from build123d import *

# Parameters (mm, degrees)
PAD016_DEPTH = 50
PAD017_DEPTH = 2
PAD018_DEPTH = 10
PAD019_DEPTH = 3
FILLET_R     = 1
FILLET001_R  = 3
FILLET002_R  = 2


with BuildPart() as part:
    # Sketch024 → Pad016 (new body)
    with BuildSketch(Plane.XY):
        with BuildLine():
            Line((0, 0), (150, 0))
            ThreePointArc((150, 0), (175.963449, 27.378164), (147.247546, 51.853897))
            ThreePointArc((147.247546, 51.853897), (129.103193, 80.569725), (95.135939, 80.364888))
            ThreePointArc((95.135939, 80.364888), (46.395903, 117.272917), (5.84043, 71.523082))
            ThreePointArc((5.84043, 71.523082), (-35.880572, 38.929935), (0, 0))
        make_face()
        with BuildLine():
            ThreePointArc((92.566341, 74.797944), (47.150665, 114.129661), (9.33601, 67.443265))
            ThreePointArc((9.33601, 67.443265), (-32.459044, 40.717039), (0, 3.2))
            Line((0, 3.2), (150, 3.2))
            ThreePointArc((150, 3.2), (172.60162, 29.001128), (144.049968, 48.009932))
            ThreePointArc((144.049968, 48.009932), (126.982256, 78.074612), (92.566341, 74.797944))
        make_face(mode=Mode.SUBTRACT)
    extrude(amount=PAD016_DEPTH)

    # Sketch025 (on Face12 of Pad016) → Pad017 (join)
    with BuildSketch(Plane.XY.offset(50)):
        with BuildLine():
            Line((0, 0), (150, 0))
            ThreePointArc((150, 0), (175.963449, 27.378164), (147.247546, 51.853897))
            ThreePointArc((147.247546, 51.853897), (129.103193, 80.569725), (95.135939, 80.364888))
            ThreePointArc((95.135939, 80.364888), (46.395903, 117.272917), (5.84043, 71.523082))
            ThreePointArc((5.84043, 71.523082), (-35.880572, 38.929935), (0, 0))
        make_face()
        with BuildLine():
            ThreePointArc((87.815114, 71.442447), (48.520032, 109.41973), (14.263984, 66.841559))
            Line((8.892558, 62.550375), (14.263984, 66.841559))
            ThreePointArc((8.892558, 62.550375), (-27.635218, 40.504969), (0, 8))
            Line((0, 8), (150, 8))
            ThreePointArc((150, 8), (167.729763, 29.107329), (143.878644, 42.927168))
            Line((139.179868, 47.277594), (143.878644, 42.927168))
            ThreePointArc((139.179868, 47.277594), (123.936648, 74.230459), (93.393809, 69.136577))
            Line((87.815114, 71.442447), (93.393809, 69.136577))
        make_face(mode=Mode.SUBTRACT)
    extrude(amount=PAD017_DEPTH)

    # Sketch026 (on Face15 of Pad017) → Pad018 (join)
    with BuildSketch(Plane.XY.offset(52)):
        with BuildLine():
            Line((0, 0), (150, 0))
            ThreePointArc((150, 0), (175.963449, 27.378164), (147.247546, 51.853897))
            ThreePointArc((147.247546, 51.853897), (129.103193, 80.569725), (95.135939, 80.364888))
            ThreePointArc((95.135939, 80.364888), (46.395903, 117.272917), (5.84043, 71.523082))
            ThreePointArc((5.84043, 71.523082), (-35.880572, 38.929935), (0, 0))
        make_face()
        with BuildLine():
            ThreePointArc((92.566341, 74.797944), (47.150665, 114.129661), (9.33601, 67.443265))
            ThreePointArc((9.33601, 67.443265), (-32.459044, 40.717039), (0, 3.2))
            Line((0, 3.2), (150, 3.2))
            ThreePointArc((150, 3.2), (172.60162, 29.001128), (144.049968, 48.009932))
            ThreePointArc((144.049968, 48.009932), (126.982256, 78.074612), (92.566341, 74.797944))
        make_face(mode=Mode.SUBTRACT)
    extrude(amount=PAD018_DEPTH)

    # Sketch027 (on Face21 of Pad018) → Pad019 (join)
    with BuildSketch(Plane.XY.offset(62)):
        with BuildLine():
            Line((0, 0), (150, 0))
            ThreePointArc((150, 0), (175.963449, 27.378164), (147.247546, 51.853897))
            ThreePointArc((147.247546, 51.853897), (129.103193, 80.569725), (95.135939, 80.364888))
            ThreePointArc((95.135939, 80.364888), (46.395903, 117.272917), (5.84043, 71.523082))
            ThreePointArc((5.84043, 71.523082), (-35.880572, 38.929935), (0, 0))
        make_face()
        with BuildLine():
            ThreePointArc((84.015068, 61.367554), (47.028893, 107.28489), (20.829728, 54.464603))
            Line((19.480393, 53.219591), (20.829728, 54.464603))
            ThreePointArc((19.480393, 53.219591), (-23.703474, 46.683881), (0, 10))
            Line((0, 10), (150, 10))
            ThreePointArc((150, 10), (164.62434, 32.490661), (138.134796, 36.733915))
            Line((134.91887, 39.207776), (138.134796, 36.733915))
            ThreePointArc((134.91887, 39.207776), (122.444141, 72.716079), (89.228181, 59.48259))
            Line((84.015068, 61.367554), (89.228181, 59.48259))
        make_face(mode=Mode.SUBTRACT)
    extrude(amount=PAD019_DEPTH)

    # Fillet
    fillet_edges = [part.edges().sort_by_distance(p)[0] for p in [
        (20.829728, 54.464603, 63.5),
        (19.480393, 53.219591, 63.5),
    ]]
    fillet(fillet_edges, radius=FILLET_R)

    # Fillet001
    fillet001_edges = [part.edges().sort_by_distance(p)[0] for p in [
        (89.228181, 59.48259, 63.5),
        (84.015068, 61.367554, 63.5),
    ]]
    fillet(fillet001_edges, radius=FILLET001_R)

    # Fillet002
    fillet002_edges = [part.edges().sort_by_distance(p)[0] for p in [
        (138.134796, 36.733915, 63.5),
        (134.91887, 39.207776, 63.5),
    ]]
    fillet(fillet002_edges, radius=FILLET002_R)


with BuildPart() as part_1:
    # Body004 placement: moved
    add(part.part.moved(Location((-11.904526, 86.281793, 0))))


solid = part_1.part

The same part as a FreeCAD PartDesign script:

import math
import FreeCAD as App
import Part
import Sketcher

V = App.Vector


def edges_at(feature, points):
    """Names of the edges that pass closest to the given points."""
    edges = feature.Shape.Edges
    near = lambda p: min(range(len(edges)), key=lambda i: edges[i].distToShape(Part.Vertex(*p))[0])
    return sorted({f"Edge{near(p) + 1}" for p in points})

doc = App.newDocument("Part")
params = doc.addObject("Spreadsheet::Sheet", "Params")
for row, (alias, value) in enumerate([
    ("sketch1_radius", "26 mm"),
    ("sketch1_radius2", "35 mm"),
    ("sketch1_radius3", "45 mm"),
    ("sketch1_radius4", "36 mm"),
    ("sketch1_radius5", "41.8 mm"),
    ("pad1_length", "50 mm"),
    ("sketch2_radius", "26 mm"),
    ("sketch2_radius2", "35 mm"),
    ("sketch2_radius3", "45 mm"),
    ("sketch2_radius4", "36 mm"),
    ("sketch2_radius5", "37 mm"),
    ("pad2_length", "2 mm"),
    ("sketch3_radius", "26 mm"),
    ("sketch3_radius2", "35 mm"),
    ("sketch3_radius3", "45 mm"),
    ("sketch3_radius4", "36 mm"),
    ("sketch3_radius5", "41.8 mm"),
    ("pad3_length", "10 mm"),
    ("sketch4_radius", "26 mm"),
    ("sketch4_radius2", "35 mm"),
    ("sketch4_radius3", "45 mm"),
    ("sketch4_radius4", "36 mm"),
    ("sketch4_radius5", "25 mm"),
    ("pad4_length", "3 mm"),
    ("fillet_radius", "1 mm"),
    ("fillet2_radius", "3 mm"),
    ("fillet3_radius", "2 mm"),
], start=1):
    params.set(f"A{row}", alias)
    params.set(f"B{row}", "=" + value)
    params.setAlias(f"B{row}", alias)

body = doc.addObject("PartDesign::Body", "Body")

sketch1 = body.newObject("Sketcher::SketchObject", "Sketch")
sketch1.AttachmentSupport = (doc.getObject("XY_Plane"), [""])
sketch1.MapMode = "FlatFace"
sketch1.addGeometry([
    Part.LineSegment(V(0, 0, 0), V(150, 0, 0)),
    Part.ArcOfCircle(Part.Circle(V(150, 26, 0), V(0, 0, 1), 26), math.radians(-90.000001), math.radians(96.076926)),
    Part.ArcOfCircle(Part.Circle(V(112.304112, 49.864825, 0), V(0, 0, 1), 35), math.radians(3.25791), math.radians(119.374715)),
    Part.ArcOfCircle(Part.Circle(V(50.83, 72.491907, 0), V(0, 0, 1), 45), math.radians(10.076047), math.radians(181.233642)),
    Part.ArcOfCircle(Part.Circle(V(0, 36, 0), V(0, 0, 1), 36), math.radians(80.663401), math.radians(270)),
    Part.ArcOfCircle(Part.Circle(V(50.83, 72.491908, 0), V(0, 0, 1), 41.8), math.radians(3.162518), math.radians(186.937175)),
    Part.ArcOfCircle(Part.Circle(V(112.304112, 49.864825, 0), V(0, 0, 1), 31.8), math.radians(-3.343958), math.radians(128.366145)),
    Part.ArcOfCircle(Part.Circle(V(150, 26, 0), V(0, 0, 1), 22.8), math.radians(-90), math.radians(105.127408)),
    Part.LineSegment(V(150, 3.2, 0), V(0, 3.2, 0)),
    Part.ArcOfCircle(Part.Circle(V(0, 36, 0), V(0, 0, 1), 32.8), math.radians(73.463001), math.radians(270)),
], False)
sketch1.addConstraint([
    Sketcher.Constraint("Tangent", 0, 2, 1, 1),
    Sketcher.Constraint("Coincident", 1, 2, 2, 1),
    Sketcher.Constraint("Coincident", 2, 2, 3, 1),
    Sketcher.Constraint("Coincident", 3, 2, 4, 1),
    Sketcher.Constraint("Tangent", 4, 2, 0, 1),
    Sketcher.Constraint("Coincident", 5, 1, 6, 2),
    Sketcher.Constraint("Coincident", 6, 1, 7, 2),
    Sketcher.Constraint("Tangent", 7, 1, 8, 1),
    Sketcher.Constraint("Tangent", 8, 2, 9, 2),
    Sketcher.Constraint("Coincident", 9, 1, 5, 2),
    Sketcher.Constraint("Horizontal", 0),
    Sketcher.Constraint("Horizontal", 8),
    Sketcher.Constraint("Coincident", 4, 2, -1, 1),
    Sketcher.Constraint("Coincident", 5, 3, 3, 3),
    Sketcher.Constraint("Coincident", 6, 3, 2, 3),
    Sketcher.Constraint("Coincident", 7, 3, 1, 3),
    Sketcher.Constraint("Coincident", 9, 3, 4, 3),
    Sketcher.Constraint("Radius", 1, 26.0),
    Sketcher.Constraint("Radius", 2, 35.0),
    Sketcher.Constraint("Radius", 3, 45.0),
    Sketcher.Constraint("Radius", 4, 36.0),
    Sketcher.Constraint("Radius", 5, 41.8),
    Sketcher.Constraint("Radius", 6, 31.8),
    Sketcher.Constraint("Radius", 7, 22.8),
    Sketcher.Constraint("DistanceX", 0, 1, 0, 2, 150.0),
    Sketcher.Constraint("DistanceX", -1, 1, 3, 3, 50.83),
    Sketcher.Constraint("DistanceX", 5, 1, 2, 2, 2.569598),
    Sketcher.Constraint("DistanceX", -1, 1, 2, 3, 112.304112),
    Sketcher.Constraint("DistanceY", -1, 1, 2, 2, 80.364888),
])
sketch1.setExpression("Constraints[17]", "Params.sketch1_radius")
sketch1.setExpression("Constraints[18]", "Params.sketch1_radius2")
sketch1.setExpression("Constraints[19]", "Params.sketch1_radius3")
sketch1.setExpression("Constraints[20]", "Params.sketch1_radius4")
sketch1.setExpression("Constraints[21]", "Params.sketch1_radius5")
pad1 = body.newObject("PartDesign::Pad", "Pad")
pad1.Profile = sketch1
pad1.setExpression("Length", "Params.pad1_length")

sketch2 = body.newObject("Sketcher::SketchObject", "Sketch001")
sketch2.AttachmentSupport = (doc.getObject("XY_Plane"), [""])
sketch2.MapMode = "FlatFace"
sketch2.AttachmentOffset = App.Placement(V(0, 0, 50), App.Rotation())
sketch2.addGeometry([
    Part.LineSegment(V(0, 0, 0), V(150, 0, 0)),
    Part.ArcOfCircle(Part.Circle(V(150, 26, 0), V(0, 0, 1), 26), math.radians(-90.000001), math.radians(96.076926)),
    Part.ArcOfCircle(Part.Circle(V(112.304112, 49.864825, 0), V(0, 0, 1), 35), math.radians(3.25791), math.radians(119.374715)),
    Part.ArcOfCircle(Part.Circle(V(50.83, 72.491907, 0), V(0, 0, 1), 45), math.radians(10.076047), math.radians(181.233642)),
    Part.ArcOfCircle(Part.Circle(V(0, 36, 0), V(0, 0, 1), 36), math.radians(80.663401), math.radians(270)),
    Part.ArcOfCircle(Part.Circle(V(50.83, 72.491908, 0), V(0, 0, 1), 37), math.radians(-1.625345), math.radians(188.784132)),
    Part.LineSegment(V(87.815114, 71.442447, 0), V(93.393809, 69.136577, 0)),
    Part.ArcOfCircle(Part.Circle(V(112.304112, 49.864825, 0), V(0, 0, 1), 27), math.radians(-5.498712), math.radians(134.457629)),
    Part.LineSegment(V(139.179868, 47.277594, 0), V(143.878644, 42.927168, 0)),
    Part.ArcOfCircle(Part.Circle(V(150, 26, 0), V(0, 0, 1), 18), math.radians(-89.999999), math.radians(109.881462)),
    Part.LineSegment(V(150, 8, 0), V(0, 8, 0)),
    Part.ArcOfCircle(Part.Circle(V(0, 36, 0), V(0, 0, 1), 28), math.radians(71.482677), math.radians(270.000001)),
    Part.LineSegment(V(8.892558, 62.550375, 0), V(14.263984, 66.841559, 0)),
], False)
sketch2.addConstraint([
    Sketcher.Constraint("Tangent", 0, 2, 1, 1),
    Sketcher.Constraint("Coincident", 1, 2, 2, 1),
    Sketcher.Constraint("Coincident", 2, 2, 3, 1),
    Sketcher.Constraint("Coincident", 3, 2, 4, 1),
    Sketcher.Constraint("Tangent", 4, 2, 0, 1),
    Sketcher.Constraint("Coincident", 5, 1, 6, 1),
    Sketcher.Constraint("Coincident", 6, 2, 7, 2),
    Sketcher.Constraint("Coincident", 7, 1, 8, 1),
    Sketcher.Constraint("Coincident", 8, 2, 9, 2),
    Sketcher.Constraint("Tangent", 9, 1, 10, 1),
    Sketcher.Constraint("Tangent", 10, 2, 11, 2),
    Sketcher.Constraint("Coincident", 11, 1, 12, 1),
    Sketcher.Constraint("Coincident", 12, 2, 5, 2),
    Sketcher.Constraint("Horizontal", 0),
    Sketcher.Constraint("Horizontal", 10),
    Sketcher.Constraint("Coincident", 4, 2, -1, 1),
    Sketcher.Constraint("Coincident", 5, 3, 3, 3),
    Sketcher.Constraint("Coincident", 7, 3, 2, 3),
    Sketcher.Constraint("Coincident", 9, 3, 1, 3),
    Sketcher.Constraint("Coincident", 11, 3, 4, 3),
    Sketcher.Constraint("Radius", 1, 26.0),
    Sketcher.Constraint("Radius", 2, 35.0),
    Sketcher.Constraint("Radius", 3, 45.0),
    Sketcher.Constraint("Radius", 4, 36.0),
    Sketcher.Constraint("Radius", 5, 37.0),
    Sketcher.Constraint("Radius", 7, 27.0),
    Sketcher.Constraint("Radius", 9, 18.0),
    Sketcher.Constraint("DistanceX", 0, 1, 0, 2, 150.0),
    Sketcher.Constraint("DistanceX", -1, 1, 3, 3, 50.83),
    Sketcher.Constraint("DistanceX", 5, 1, 7, 3, 24.488998),
    Sketcher.Constraint("Distance", 8, 6.403491),
    Sketcher.Constraint("Distance", 12, 6.875062),
    Sketcher.Constraint("DistanceX", -1, 1, 2, 3, 112.304112),
    Sketcher.Constraint("DistanceX", -1, 1, 2, 2, 95.135939),
    Sketcher.Constraint("DistanceY", -1, 1, 2, 2, 80.364888),
    Sketcher.Constraint("DistanceX", -1, 1, 6, 2, 93.393809),
    Sketcher.Constraint("DistanceX", -1, 1, 7, 1, 139.179868),
    Sketcher.Constraint("DistanceX", -1, 1, 11, 1, 8.892558),
])
sketch2.setExpression("Constraints[20]", "Params.sketch2_radius")
sketch2.setExpression("Constraints[21]", "Params.sketch2_radius2")
sketch2.setExpression("Constraints[22]", "Params.sketch2_radius3")
sketch2.setExpression("Constraints[23]", "Params.sketch2_radius4")
sketch2.setExpression("Constraints[24]", "Params.sketch2_radius5")
pad2 = body.newObject("PartDesign::Pad", "Pad001")
pad2.Profile = sketch2
pad2.setExpression("Length", "Params.pad2_length")

sketch3 = body.newObject("Sketcher::SketchObject", "Sketch002")
sketch3.AttachmentSupport = (doc.getObject("XY_Plane"), [""])
sketch3.MapMode = "FlatFace"
sketch3.AttachmentOffset = App.Placement(V(0, 0, 52), App.Rotation())
sketch3.addGeometry([
    Part.LineSegment(V(0, 0, 0), V(150, 0, 0)),
    Part.ArcOfCircle(Part.Circle(V(150, 26, 0), V(0, 0, 1), 26), math.radians(-90.000001), math.radians(96.076926)),
    Part.ArcOfCircle(Part.Circle(V(112.304112, 49.864825, 0), V(0, 0, 1), 35), math.radians(3.25791), math.radians(119.374715)),
    Part.ArcOfCircle(Part.Circle(V(50.83, 72.491907, 0), V(0, 0, 1), 45), math.radians(10.076047), math.radians(181.233642)),
    Part.ArcOfCircle(Part.Circle(V(0, 36, 0), V(0, 0, 1), 36), math.radians(80.663401), math.radians(270)),
    Part.ArcOfCircle(Part.Circle(V(50.83, 72.491908, 0), V(0, 0, 1), 41.8), math.radians(3.162518), math.radians(186.937175)),
    Part.ArcOfCircle(Part.Circle(V(112.304112, 49.864825, 0), V(0, 0, 1), 31.8), math.radians(-3.343958), math.radians(128.366145)),
    Part.ArcOfCircle(Part.Circle(V(150, 26, 0), V(0, 0, 1), 22.8), math.radians(-90), math.radians(105.127408)),
    Part.LineSegment(V(150, 3.2, 0), V(0, 3.2, 0)),
    Part.ArcOfCircle(Part.Circle(V(0, 36, 0), V(0, 0, 1), 32.8), math.radians(73.463001), math.radians(270)),
], False)
sketch3.addConstraint([
    Sketcher.Constraint("Tangent", 0, 2, 1, 1),
    Sketcher.Constraint("Coincident", 1, 2, 2, 1),
    Sketcher.Constraint("Coincident", 2, 2, 3, 1),
    Sketcher.Constraint("Coincident", 3, 2, 4, 1),
    Sketcher.Constraint("Tangent", 4, 2, 0, 1),
    Sketcher.Constraint("Coincident", 5, 1, 6, 2),
    Sketcher.Constraint("Coincident", 6, 1, 7, 2),
    Sketcher.Constraint("Tangent", 7, 1, 8, 1),
    Sketcher.Constraint("Tangent", 8, 2, 9, 2),
    Sketcher.Constraint("Coincident", 9, 1, 5, 2),
    Sketcher.Constraint("Horizontal", 0),
    Sketcher.Constraint("Horizontal", 8),
    Sketcher.Constraint("Coincident", 4, 2, -1, 1),
    Sketcher.Constraint("Coincident", 5, 3, 3, 3),
    Sketcher.Constraint("Coincident", 6, 3, 2, 3),
    Sketcher.Constraint("Coincident", 7, 3, 1, 3),
    Sketcher.Constraint("Coincident", 9, 3, 4, 3),
    Sketcher.Constraint("Radius", 1, 26.0),
    Sketcher.Constraint("Radius", 2, 35.0),
    Sketcher.Constraint("Radius", 3, 45.0),
    Sketcher.Constraint("Radius", 4, 36.0),
    Sketcher.Constraint("Radius", 5, 41.8),
    Sketcher.Constraint("Radius", 6, 31.8),
    Sketcher.Constraint("Radius", 7, 22.8),
    Sketcher.Constraint("DistanceX", 0, 1, 0, 2, 150.0),
    Sketcher.Constraint("DistanceX", -1, 1, 3, 3, 50.83),
    Sketcher.Constraint("DistanceX", 5, 1, 2, 2, 2.569598),
    Sketcher.Constraint("DistanceX", -1, 1, 2, 3, 112.304112),
    Sketcher.Constraint("DistanceY", -1, 1, 2, 2, 80.364888),
])
sketch3.setExpression("Constraints[17]", "Params.sketch3_radius")
sketch3.setExpression("Constraints[18]", "Params.sketch3_radius2")
sketch3.setExpression("Constraints[19]", "Params.sketch3_radius3")
sketch3.setExpression("Constraints[20]", "Params.sketch3_radius4")
sketch3.setExpression("Constraints[21]", "Params.sketch3_radius5")
pad3 = body.newObject("PartDesign::Pad", "Pad002")
pad3.Profile = sketch3
pad3.setExpression("Length", "Params.pad3_length")

sketch4 = body.newObject("Sketcher::SketchObject", "Sketch003")
sketch4.AttachmentSupport = (doc.getObject("XY_Plane"), [""])
sketch4.MapMode = "FlatFace"
sketch4.AttachmentOffset = App.Placement(V(0, 0, 62), App.Rotation())
sketch4.addGeometry([
    Part.LineSegment(V(0, 0, 0), V(150, 0, 0)),
    Part.ArcOfCircle(Part.Circle(V(150, 26, 0), V(0, 0, 1), 26), math.radians(-90.000001), math.radians(96.076926)),
    Part.ArcOfCircle(Part.Circle(V(112.304112, 49.864825, 0), V(0, 0, 1), 35), math.radians(3.25791), math.radians(119.374715)),
    Part.ArcOfCircle(Part.Circle(V(50.83, 72.491907, 0), V(0, 0, 1), 45), math.radians(10.076047), math.radians(181.233642)),
    Part.ArcOfCircle(Part.Circle(V(0, 36, 0), V(0, 0, 1), 36), math.radians(80.663401), math.radians(270)),
    Part.ArcOfCircle(Part.Circle(V(50.83, 72.491908, 0), V(0, 0, 1), 35), math.radians(-18.532268), math.radians(211.001857)),
    Part.LineSegment(V(84.015068, 61.367554, 0), V(89.228181, 59.48259, 0)),
    Part.ArcOfCircle(Part.Circle(V(112.304112, 49.864825, 0), V(0, 0, 1), 25), math.radians(-25.231835), math.radians(157.374225)),
    Part.LineSegment(V(134.91887, 39.207776, 0), V(138.134796, 36.733915, 0)),
    Part.ArcOfCircle(Part.Circle(V(150, 26, 0), V(0, 0, 1), 16), math.radians(-90), math.radians(137.865777)),
    Part.LineSegment(V(150, 10, 0), V(0, 10, 0)),
    Part.ArcOfCircle(Part.Circle(V(0, 36, 0), V(0, 0, 1), 26), math.radians(41.474905), math.radians(269.999999)),
    Part.LineSegment(V(19.480393, 53.219591, 0), V(20.829728, 54.464603, 0)),
], False)
sketch4.addConstraint([
    Sketcher.Constraint("Tangent", 0, 2, 1, 1),
    Sketcher.Constraint("Coincident", 1, 2, 2, 1),
    Sketcher.Constraint("Coincident", 2, 2, 3, 1),
    Sketcher.Constraint("Coincident", 3, 2, 4, 1),
    Sketcher.Constraint("Tangent", 4, 2, 0, 1),
    Sketcher.Constraint("Coincident", 5, 1, 6, 1),
    Sketcher.Constraint("Coincident", 6, 2, 7, 2),
    Sketcher.Constraint("Coincident", 7, 1, 8, 1),
    Sketcher.Constraint("Coincident", 8, 2, 9, 2),
    Sketcher.Constraint("Tangent", 9, 1, 10, 1),
    Sketcher.Constraint("Tangent", 10, 2, 11, 2),
    Sketcher.Constraint("Coincident", 11, 1, 12, 1),
    Sketcher.Constraint("Coincident", 12, 2, 5, 2),
    Sketcher.Constraint("Horizontal", 0),
    Sketcher.Constraint("Horizontal", 10),
    Sketcher.Constraint("Coincident", 4, 2, -1, 1),
    Sketcher.Constraint("Coincident", 5, 3, 3, 3),
    Sketcher.Constraint("Coincident", 7, 3, 2, 3),
    Sketcher.Constraint("Coincident", 9, 3, 1, 3),
    Sketcher.Constraint("Coincident", 11, 3, 4, 3),
    Sketcher.Constraint("Equal", 2, 5),
    Sketcher.Constraint("Equal", 1, 11),
    Sketcher.Constraint("Radius", 1, 26.0),
    Sketcher.Constraint("Radius", 2, 35.0),
    Sketcher.Constraint("Radius", 3, 45.0),
    Sketcher.Constraint("Radius", 4, 36.0),
    Sketcher.Constraint("Radius", 7, 25.0),
    Sketcher.Constraint("DistanceX", 0, 1, 0, 2, 150.0),
    Sketcher.Constraint("DistanceX", -1, 1, 3, 3, 50.83),
    Sketcher.Constraint("DistanceY", 6, 2, 2, 2, 20.882298),
    Sketcher.Constraint("Distance", 6, 5.543432),
    Sketcher.Constraint("Distance", 8, 4.05736),
    Sketcher.Constraint("DistanceX", -1, 1, 2, 3, 112.304112),
    Sketcher.Constraint("DistanceY", -1, 1, 2, 2, 80.364888),
    Sketcher.Constraint("DistanceX", -1, 1, 5, 1, 84.015068),
    Sketcher.Constraint("DistanceX", -1, 1, 7, 1, 134.91887),
    Sketcher.Constraint("DistanceY", -1, 1, 11, 1, 53.219591),
    Sketcher.Constraint("DistanceY", 11, 1, 12, 2, 1.245012),
])
sketch4.setExpression("Constraints[22]", "Params.sketch4_radius")
sketch4.setExpression("Constraints[23]", "Params.sketch4_radius2")
sketch4.setExpression("Constraints[24]", "Params.sketch4_radius3")
sketch4.setExpression("Constraints[25]", "Params.sketch4_radius4")
sketch4.setExpression("Constraints[26]", "Params.sketch4_radius5")
pad4 = body.newObject("PartDesign::Pad", "Pad003")
pad4.Profile = sketch4
pad4.setExpression("Length", "Params.pad4_length")
doc.recompute()

fillet = body.newObject("PartDesign::Fillet", "Fillet")
fillet.Base = (pad4, edges_at(pad4, [(20.83, 54.465, 63.5), (19.48, 53.22, 63.5)]))
fillet.setExpression("Radius", "Params.fillet_radius")
doc.recompute()

fillet2 = body.newObject("PartDesign::Fillet", "Fillet001")
fillet2.Base = (fillet, edges_at(fillet, [(89.228, 59.483, 63.5), (84.015, 61.368, 63.5)]))
fillet2.setExpression("Radius", "Params.fillet2_radius")
doc.recompute()

fillet3 = body.newObject("PartDesign::Fillet", "Fillet002")
fillet3.Base = (fillet2, edges_at(fillet2, [(138.135, 36.734, 63.5), (134.919, 39.208, 63.5)]))
fillet3.setExpression("Radius", "Params.fillet3_radius")
body2 = doc.addObject("PartDesign::Body", "Body001")
doc.recompute()

body.Placement = App.Placement(V(-11.904526, 86.281793, 0), App.Rotation(V(0, 0, 1), 0))
boolean = body2.newObject("PartDesign::Boolean", "Boolean")
boolean.Type = "Fuse"
boolean.addObjects([body])

doc.recompute()
